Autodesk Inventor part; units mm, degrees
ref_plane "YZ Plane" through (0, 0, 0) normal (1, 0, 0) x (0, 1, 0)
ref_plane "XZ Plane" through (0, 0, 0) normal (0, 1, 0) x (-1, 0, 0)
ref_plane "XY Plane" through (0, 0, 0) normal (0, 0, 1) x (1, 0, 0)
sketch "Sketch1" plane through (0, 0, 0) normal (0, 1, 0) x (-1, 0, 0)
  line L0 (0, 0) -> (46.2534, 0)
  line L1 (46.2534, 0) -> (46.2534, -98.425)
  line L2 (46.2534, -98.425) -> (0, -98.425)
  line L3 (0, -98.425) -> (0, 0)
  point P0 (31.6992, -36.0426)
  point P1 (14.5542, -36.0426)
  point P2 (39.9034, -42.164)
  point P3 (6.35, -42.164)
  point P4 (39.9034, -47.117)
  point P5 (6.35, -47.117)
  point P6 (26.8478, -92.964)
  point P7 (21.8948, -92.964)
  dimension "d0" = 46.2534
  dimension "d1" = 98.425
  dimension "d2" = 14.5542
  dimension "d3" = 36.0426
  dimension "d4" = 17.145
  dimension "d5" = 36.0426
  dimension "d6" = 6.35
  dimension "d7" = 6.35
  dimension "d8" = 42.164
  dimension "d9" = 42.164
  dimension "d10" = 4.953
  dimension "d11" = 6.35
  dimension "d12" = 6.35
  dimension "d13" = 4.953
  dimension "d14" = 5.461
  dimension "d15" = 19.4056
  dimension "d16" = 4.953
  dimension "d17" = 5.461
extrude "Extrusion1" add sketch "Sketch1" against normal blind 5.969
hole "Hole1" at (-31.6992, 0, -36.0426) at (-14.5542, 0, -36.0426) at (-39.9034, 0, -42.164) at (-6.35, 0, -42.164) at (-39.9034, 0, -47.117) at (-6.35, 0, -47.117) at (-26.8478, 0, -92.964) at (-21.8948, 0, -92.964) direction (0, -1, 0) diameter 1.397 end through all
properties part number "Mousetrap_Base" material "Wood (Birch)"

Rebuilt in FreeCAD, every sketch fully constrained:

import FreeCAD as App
import Part
import Sketcher
Q = App.Units.Quantity


def add_polygon(sketch, points):
    """Adds a closed chain of lines whose ends are joined by coincident constraints."""
    first, n = sketch.GeometryCount, len(points)
    for a, b in zip(points, points[1:] + points[:1]):
        sketch.addGeometry(Part.LineSegment(App.Vector(*a, 0), App.Vector(*b, 0)), False)
    for i in range(n):
        sketch.addConstraint(Sketcher.Constraint("Coincident", first + i, 2, first + (i + 1) % n, 1))

doc = App.newDocument("Part")
body = doc.addObject("PartDesign::Body", "Body")

sketch1 = body.newObject("Sketcher::SketchObject", "Sketch")
sketch1.AttachmentSupport = (doc.getObject("XZ_Plane"), [""])
sketch1.MapMode = "FlatFace"
add_polygon(sketch1, [(-46.2534, 0), (0, 0), (0, -98.425), (-46.2534, -98.425)])
sketch1.addConstraint(Sketcher.Constraint("Horizontal", 0))
sketch1.addConstraint(Sketcher.Constraint("Vertical", 1))
sketch1.addConstraint(Sketcher.Constraint("Horizontal", 2))
sketch1.addConstraint(Sketcher.Constraint("Vertical", 3))
sketch1.addConstraint(Sketcher.Constraint("Coincident", 0, 2, -1, 1))
sketch1.addConstraint(Sketcher.Constraint("DistanceX", 0, 1, 0, 2, Q("1.821 in")))
sketch1.addConstraint(Sketcher.Constraint("DistanceY", 1, 2, 1, 1, Q("3.875 in")))
pad1 = body.newObject("PartDesign::Pad", "Pad")
pad1.Profile = sketch1
pad1.Length = Q("0.235 in")

sketch2 = body.newObject("Sketcher::SketchObject", "Sketch001")
sketch2.AttachmentSupport = (doc.getObject("XZ_Plane"), [""])
sketch2.MapMode = "FlatFace"
sketch2.addGeometry(Part.Circle(App.Vector(-31.6992, -36.0426, 0), App.Vector(0, 0, 1), 0.6985), False)
sketch2.addGeometry(Part.Circle(App.Vector(-14.5542, -36.0426, 0), App.Vector(0, 0, 1), 0.6985), False)
sketch2.addGeometry(Part.Circle(App.Vector(-39.9034, -42.164, 0), App.Vector(0, 0, 1), 0.6985), False)
sketch2.addGeometry(Part.Circle(App.Vector(-6.35, -42.164, 0), App.Vector(0, 0, 1), 0.6985), False)
sketch2.addGeometry(Part.Circle(App.Vector(-39.9034, -47.117, 0), App.Vector(0, 0, 1), 0.6985), False)
sketch2.addGeometry(Part.Circle(App.Vector(-6.35, -47.117, 0), App.Vector(0, 0, 1), 0.6985), False)
sketch2.addGeometry(Part.Circle(App.Vector(-26.8478, -92.964, 0), App.Vector(0, 0, 1), 0.6985), False)
sketch2.addGeometry(Part.Circle(App.Vector(-21.8948, -92.964, 0), App.Vector(0, 0, 1), 0.6985), False)
sketch2.addConstraint(Sketcher.Constraint("Equal", 0, 1))
sketch2.addConstraint(Sketcher.Constraint("Equal", 1, 2))
sketch2.addConstraint(Sketcher.Constraint("Equal", 2, 3))
sketch2.addConstraint(Sketcher.Constraint("Equal", 3, 4))
sketch2.addConstraint(Sketcher.Constraint("Equal", 4, 5))
sketch2.addConstraint(Sketcher.Constraint("Equal", 5, 6))
sketch2.addConstraint(Sketcher.Constraint("Equal", 6, 7))
sketch2.addConstraint(Sketcher.Constraint("Horizontal", 0, 3, 1, 3))
sketch2.addConstraint(Sketcher.Constraint("Horizontal", 2, 3, 3, 3))
sketch2.addConstraint(Sketcher.Constraint("Horizontal", 4, 3, 5, 3))
sketch2.addConstraint(Sketcher.Constraint("Horizontal", 6, 3, 7, 3))
sketch2.addConstraint(Sketcher.Constraint("Vertical", 2, 3, 4, 3))
sketch2.addConstraint(Sketcher.Constraint("Vertical", 3, 3, 5, 3))
sketch2.addConstraint(Sketcher.Constraint("Diameter", 0, Q("0.055 in")))
sketch2.addConstraint(Sketcher.Constraint("DistanceY", 6, 3, 2, 3, Q("2 in")))
sketch2.addConstraint(Sketcher.Constraint("DistanceY", 2, 3, -1, 1, Q("1.66 in")))
sketch2.addConstraint(Sketcher.Constraint("DistanceX", 3, 3, -1, 1, Q("0.25 in")))
sketch2.addConstraint(Sketcher.Constraint("DistanceX", 0, 3, -1, 1, Q("1.248 in")))
sketch2.addConstraint(Sketcher.Constraint("DistanceY", 0, 3, -1, 1, Q("1.419 in")))
sketch2.addConstraint(Sketcher.Constraint("DistanceX", 1, 3, -1, 1, Q("0.573 in")))
sketch2.addConstraint(Sketcher.Constraint("DistanceX", 2, 3, -1, 1, Q("1.571 in")))
sketch2.addConstraint(Sketcher.Constraint("DistanceY", 4, 3, -1, 1, Q("1.855 in")))
sketch2.addConstraint(Sketcher.Constraint("DistanceX", 6, 3, -1, 1, Q("1.057 in")))
sketch2.addConstraint(Sketcher.Constraint("DistanceX", 7, 3, -1, 1, Q("0.862 in")))
doc.recompute()
hole = body.newObject("PartDesign::Hole", "Hole")
hole.Profile = sketch2
hole.ThreadType = "None"
hole.Diameter = Q("0.055 in")
hole.DepthType = "ThroughAll"
hole.Reversed = True

doc.recompute()
